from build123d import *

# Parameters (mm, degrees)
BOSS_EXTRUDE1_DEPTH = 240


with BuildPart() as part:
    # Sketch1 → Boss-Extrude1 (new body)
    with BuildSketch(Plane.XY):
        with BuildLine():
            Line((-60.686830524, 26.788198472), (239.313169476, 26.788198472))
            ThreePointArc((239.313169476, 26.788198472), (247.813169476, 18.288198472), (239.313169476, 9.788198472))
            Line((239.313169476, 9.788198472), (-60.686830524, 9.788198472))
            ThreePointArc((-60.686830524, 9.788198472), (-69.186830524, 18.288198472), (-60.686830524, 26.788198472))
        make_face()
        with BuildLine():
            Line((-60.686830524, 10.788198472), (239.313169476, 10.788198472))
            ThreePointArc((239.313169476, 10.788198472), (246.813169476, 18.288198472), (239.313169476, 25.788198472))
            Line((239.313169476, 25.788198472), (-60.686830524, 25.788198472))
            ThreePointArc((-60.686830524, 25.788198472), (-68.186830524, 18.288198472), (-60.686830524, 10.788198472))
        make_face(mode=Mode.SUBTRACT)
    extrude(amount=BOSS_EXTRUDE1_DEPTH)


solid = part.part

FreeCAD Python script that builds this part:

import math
import FreeCAD as App
import Part
import Sketcher
from FreeCAD import Vector
Q = App.Units.Quantity

doc = App.newDocument("Part")
body = doc.addObject("PartDesign::Body", "Body")

# Sketch on XY plane
sketch1 = body.newObject("Sketcher::SketchObject", "Sketch")
sketch1.AttachmentSupport = (doc.getObject("XY_Plane"), [""])
sketch1.MapMode = "FlatFace"
sketch1.addGeometry([
    Part.LineSegment(Vector(239.313169, 26.788198, 0), Vector(-60.686831, 26.788198, 0)),  # 0
    Part.ArcOfCircle(Part.Circle(Vector(-60.686831, 18.288198, 0), Vector(0, 0, 1), 8.5), math.radians(90), math.radians(270)),  # 1
    Part.LineSegment(Vector(-60.686831, 9.788198, 0), Vector(239.313169, 9.788198, 0)),  # 2
    Part.ArcOfCircle(Part.Circle(Vector(239.313169, 18.288198, 0), Vector(0, 0, 1), 8.5), math.radians(-90), math.radians(90)),  # 3
    Part.ArcOfCircle(Part.Circle(Vector(-60.686831, 18.288198, 0), Vector(0, 0, 1), 7.5), math.radians(90), math.radians(270)),  # 4
    Part.LineSegment(Vector(-60.686831, 25.788198, 0), Vector(239.313169, 25.788198, 0)),  # 5
    Part.ArcOfCircle(Part.Circle(Vector(239.313169, 18.288198, 0), Vector(0, 0, 1), 7.5), math.radians(-90), math.radians(90)),  # 6
    Part.LineSegment(Vector(239.313169, 10.788198, 0), Vector(-60.686831, 10.788198, 0)),  # 7
], False)
sketch1.addConstraint([
    Sketcher.Constraint("Tangent", 0, 2, 1, 1),
    Sketcher.Constraint("Tangent", 1, 2, 2, 1),
    Sketcher.Constraint("Tangent", 2, 2, 3, 1),
    Sketcher.Constraint("Tangent", 3, 2, 0, 1),
    Sketcher.Constraint("Tangent", 4, 1, 5, 1),
    Sketcher.Constraint("Tangent", 5, 2, 6, 2),
    Sketcher.Constraint("Tangent", 6, 1, 7, 1),
    Sketcher.Constraint("Tangent", 7, 2, 4, 2),
    Sketcher.Constraint("Horizontal", 0),
    Sketcher.Constraint("Horizontal", 2),
    Sketcher.Constraint("Horizontal", 5),
    Sketcher.Constraint("Horizontal", 7),
    Sketcher.Constraint("Coincident", 4, 3, 1, 3),
    Sketcher.Constraint("Vertical", 6, 3, 2, 2),
    Sketcher.Constraint("Radius", 1, Q("8.5 mm")),
    Sketcher.Constraint("Radius", 4, Q("7.5 mm")),
    Sketcher.Constraint("DistanceX", 0, 2, 0, 1, Q("300 mm")),
    Sketcher.Constraint("DistanceY", -1, 1, 1, 3, Q("18.288198 mm")),
    Sketcher.Constraint("DistanceX", 1, 3, -1, 1, Q("60.686831 mm")),
])
pad1 = body.newObject("PartDesign::Pad", "Pad")
pad1.Profile = sketch1
pad1.Length = 240

doc.recompute()
